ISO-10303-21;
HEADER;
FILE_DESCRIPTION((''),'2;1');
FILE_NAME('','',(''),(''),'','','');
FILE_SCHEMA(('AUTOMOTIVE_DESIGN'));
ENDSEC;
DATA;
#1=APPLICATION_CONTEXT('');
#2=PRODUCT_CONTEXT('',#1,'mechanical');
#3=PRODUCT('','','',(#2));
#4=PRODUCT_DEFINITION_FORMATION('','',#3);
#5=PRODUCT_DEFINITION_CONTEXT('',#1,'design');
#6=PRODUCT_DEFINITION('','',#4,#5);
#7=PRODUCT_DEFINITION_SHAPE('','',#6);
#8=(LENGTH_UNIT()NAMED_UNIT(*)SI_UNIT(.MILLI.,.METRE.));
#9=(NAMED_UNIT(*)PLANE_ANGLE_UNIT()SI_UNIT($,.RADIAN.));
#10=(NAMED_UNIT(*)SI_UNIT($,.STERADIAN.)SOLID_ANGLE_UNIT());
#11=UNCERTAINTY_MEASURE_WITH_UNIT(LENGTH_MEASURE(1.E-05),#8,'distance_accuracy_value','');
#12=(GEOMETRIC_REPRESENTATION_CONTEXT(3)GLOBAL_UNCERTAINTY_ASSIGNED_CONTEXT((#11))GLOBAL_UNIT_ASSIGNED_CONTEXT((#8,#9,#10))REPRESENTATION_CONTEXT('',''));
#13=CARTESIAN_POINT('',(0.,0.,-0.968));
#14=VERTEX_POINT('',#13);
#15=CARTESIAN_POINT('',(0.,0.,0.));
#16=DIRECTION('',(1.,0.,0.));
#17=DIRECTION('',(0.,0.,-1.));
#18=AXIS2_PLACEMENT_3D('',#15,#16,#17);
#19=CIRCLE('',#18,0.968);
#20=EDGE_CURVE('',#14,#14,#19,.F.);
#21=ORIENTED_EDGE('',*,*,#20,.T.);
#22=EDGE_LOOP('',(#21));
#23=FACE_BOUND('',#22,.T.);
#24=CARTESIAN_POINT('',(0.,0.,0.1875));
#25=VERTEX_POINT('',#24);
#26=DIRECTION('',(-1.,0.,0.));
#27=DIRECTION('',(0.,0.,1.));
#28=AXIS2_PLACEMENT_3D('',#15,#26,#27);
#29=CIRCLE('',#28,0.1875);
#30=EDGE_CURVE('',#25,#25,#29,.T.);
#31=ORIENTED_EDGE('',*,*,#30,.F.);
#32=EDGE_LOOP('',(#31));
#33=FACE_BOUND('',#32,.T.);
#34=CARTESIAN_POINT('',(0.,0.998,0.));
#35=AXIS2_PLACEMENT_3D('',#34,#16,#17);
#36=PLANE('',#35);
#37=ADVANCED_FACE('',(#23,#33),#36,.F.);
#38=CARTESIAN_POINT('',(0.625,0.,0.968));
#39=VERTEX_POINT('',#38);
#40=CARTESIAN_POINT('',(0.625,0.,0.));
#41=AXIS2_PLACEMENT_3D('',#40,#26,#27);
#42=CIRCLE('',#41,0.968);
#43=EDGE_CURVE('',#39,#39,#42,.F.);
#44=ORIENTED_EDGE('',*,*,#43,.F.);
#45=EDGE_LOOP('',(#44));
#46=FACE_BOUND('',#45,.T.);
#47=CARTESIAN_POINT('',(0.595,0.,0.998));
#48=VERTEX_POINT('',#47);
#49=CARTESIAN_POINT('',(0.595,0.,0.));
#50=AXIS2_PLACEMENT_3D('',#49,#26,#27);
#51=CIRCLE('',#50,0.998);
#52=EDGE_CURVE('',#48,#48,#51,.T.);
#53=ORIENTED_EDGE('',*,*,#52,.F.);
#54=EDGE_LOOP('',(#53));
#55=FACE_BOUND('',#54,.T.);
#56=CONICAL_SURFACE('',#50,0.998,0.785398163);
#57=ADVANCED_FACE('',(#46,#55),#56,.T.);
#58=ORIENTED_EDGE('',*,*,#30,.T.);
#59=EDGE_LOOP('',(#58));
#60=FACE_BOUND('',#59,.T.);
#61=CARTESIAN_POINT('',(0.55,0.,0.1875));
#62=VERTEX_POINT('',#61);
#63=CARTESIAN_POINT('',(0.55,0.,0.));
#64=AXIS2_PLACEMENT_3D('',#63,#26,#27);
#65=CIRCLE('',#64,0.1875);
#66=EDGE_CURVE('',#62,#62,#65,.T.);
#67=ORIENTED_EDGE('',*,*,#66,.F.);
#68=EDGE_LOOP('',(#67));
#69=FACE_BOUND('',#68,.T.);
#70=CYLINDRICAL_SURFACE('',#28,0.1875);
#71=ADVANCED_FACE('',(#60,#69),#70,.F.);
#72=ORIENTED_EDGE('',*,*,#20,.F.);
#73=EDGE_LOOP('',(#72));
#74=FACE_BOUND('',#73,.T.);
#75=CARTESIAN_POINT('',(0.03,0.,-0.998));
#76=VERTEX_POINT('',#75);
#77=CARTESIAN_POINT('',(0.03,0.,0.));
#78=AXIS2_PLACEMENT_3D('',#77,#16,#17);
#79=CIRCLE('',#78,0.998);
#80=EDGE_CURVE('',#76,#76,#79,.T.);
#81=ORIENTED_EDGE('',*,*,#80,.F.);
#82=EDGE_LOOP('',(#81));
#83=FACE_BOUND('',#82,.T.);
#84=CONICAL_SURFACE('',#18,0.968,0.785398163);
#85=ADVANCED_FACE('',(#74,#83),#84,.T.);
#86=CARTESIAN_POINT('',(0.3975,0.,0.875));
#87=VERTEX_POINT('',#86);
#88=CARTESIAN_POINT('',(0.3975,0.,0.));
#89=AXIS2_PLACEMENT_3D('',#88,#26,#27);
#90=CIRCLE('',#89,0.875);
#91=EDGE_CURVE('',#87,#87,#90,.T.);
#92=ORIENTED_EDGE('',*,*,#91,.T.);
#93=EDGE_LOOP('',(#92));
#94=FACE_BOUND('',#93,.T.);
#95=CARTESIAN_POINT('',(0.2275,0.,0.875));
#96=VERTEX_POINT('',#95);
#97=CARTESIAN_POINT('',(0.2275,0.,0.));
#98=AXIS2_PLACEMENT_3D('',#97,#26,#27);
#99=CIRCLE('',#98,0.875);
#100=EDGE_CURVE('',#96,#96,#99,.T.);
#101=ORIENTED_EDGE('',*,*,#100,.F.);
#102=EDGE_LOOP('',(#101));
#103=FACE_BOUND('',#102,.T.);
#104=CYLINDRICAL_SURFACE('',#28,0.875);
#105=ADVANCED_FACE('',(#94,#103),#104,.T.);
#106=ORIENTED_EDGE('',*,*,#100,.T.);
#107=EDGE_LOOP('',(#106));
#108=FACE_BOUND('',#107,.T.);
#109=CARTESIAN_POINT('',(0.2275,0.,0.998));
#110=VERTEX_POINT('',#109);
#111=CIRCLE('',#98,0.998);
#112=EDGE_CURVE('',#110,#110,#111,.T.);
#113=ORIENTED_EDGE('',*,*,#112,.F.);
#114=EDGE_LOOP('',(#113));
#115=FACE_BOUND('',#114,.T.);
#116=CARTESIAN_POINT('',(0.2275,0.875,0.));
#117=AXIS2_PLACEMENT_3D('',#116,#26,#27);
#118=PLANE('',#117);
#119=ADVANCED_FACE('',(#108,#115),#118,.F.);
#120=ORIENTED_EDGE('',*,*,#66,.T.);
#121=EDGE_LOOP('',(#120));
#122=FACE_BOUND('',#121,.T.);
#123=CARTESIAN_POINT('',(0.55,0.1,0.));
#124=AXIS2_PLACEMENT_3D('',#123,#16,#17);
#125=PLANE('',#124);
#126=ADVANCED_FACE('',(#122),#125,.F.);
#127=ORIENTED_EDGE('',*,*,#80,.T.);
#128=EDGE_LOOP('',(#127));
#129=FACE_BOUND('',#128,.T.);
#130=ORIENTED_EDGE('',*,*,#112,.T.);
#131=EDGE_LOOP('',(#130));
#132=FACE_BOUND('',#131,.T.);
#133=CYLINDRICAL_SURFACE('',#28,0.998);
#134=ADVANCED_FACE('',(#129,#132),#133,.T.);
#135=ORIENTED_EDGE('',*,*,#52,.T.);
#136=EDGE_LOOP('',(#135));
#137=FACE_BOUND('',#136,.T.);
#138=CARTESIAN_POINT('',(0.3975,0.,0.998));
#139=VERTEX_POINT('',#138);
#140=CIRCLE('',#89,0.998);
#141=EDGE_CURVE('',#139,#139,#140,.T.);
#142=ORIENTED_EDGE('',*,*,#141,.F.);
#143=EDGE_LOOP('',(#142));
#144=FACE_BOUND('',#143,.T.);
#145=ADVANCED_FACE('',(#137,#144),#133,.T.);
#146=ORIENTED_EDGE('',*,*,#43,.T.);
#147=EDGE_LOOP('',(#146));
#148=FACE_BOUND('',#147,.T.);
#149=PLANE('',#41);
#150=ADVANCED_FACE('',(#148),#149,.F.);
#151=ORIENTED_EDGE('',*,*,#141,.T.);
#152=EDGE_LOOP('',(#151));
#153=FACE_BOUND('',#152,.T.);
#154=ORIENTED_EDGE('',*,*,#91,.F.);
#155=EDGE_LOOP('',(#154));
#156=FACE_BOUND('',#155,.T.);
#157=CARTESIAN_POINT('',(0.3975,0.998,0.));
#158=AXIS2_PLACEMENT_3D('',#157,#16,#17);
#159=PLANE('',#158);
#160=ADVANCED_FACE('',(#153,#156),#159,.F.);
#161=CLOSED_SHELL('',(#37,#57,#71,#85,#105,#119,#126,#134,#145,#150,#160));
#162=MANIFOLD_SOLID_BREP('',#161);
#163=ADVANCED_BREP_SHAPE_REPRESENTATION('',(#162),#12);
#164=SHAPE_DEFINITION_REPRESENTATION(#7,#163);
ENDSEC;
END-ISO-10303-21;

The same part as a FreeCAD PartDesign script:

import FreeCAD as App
import Part
import Sketcher
from FreeCAD import Vector


def edges_at(feature, points):
    """Names of the edges that pass closest to the given points."""
    edges = feature.Shape.Edges
    near = lambda p: min(range(len(edges)), key=lambda i: edges[i].distToShape(Part.Vertex(*p))[0])
    return sorted({f"Edge{near(p) + 1}" for p in points})


def add_polygon(sketch, points):
    """Adds a closed chain of lines whose ends are joined by coincident constraints."""
    first, n = sketch.GeometryCount, len(points)
    for a, b in zip(points, points[1:] + points[:1]):
        sketch.addGeometry(Part.LineSegment(App.Vector(*a, 0), App.Vector(*b, 0)), False)
    for i in range(n):
        sketch.addConstraint(Sketcher.Constraint("Coincident", first + i, 2, first + (i + 1) % n, 1))

doc = App.newDocument("Part")
body = doc.addObject("PartDesign::Body", "Body")

sketch1 = body.newObject("Sketcher::SketchObject", "Sketch")
sketch1.AttachmentSupport = (doc.getObject("XY_Plane"), [""])
sketch1.MapMode = "FlatFace"
add_polygon(sketch1, [(0, 0.1875), (0.55, 0.1875), (0.55, 0), (0.625, 0), (0.625, 0.998), (0.3975, 0.998), (0.3975, 0.875), (0.2275, 0.875), (0.2275, 0.998), (0, 0.998)])
sketch1.addConstraint([
    Sketcher.Constraint("Horizontal", 0),
    Sketcher.Constraint("Vertical", 1),
    Sketcher.Constraint("Horizontal", 2),
    Sketcher.Constraint("Vertical", 3),
    Sketcher.Constraint("Horizontal", 4),
    Sketcher.Constraint("Vertical", 5),
    Sketcher.Constraint("Horizontal", 6),
    Sketcher.Constraint("Vertical", 7),
    Sketcher.Constraint("Horizontal", 8),
    Sketcher.Constraint("Vertical", 9),
    Sketcher.Constraint("PointOnObject", 1, 2, -1),
    Sketcher.Constraint("PointOnObject", 8, 2, -2),
    Sketcher.Constraint("Horizontal", 4, 2, 7, 2),
    Sketcher.Constraint("Equal", 4, 8),
    Sketcher.Constraint("DistanceX", 0, 1, 0, 2, 0.55),
    Sketcher.Constraint("DistanceX", 6, 2, 6, 1, 0.17),
    Sketcher.Constraint("DistanceX", 2, 1, 2, 2, 0.075),
    Sketcher.Constraint("DistanceY", 3, 1, 3, 2, 0.998),
    Sketcher.Constraint("DistanceY", 5, 2, 5, 1, 0.123),
    Sketcher.Constraint("DistanceY", 1, 2, 1, 1, 0.1875),
])
revolution = body.newObject("PartDesign::Revolution", "Revolution")
revolution.Profile = sketch1
revolution.ReferenceAxis = (sketch1, ["H_Axis"])
revolution.Angle = 360
doc.recompute()

chamfer = body.newObject("PartDesign::Chamfer", "Chamfer")
chamfer.Base = (revolution, edges_at(revolution, [(0, 0, -0.998), (0.625, 0, -0.998)]))
chamfer.Size = 0.03

doc.recompute()
